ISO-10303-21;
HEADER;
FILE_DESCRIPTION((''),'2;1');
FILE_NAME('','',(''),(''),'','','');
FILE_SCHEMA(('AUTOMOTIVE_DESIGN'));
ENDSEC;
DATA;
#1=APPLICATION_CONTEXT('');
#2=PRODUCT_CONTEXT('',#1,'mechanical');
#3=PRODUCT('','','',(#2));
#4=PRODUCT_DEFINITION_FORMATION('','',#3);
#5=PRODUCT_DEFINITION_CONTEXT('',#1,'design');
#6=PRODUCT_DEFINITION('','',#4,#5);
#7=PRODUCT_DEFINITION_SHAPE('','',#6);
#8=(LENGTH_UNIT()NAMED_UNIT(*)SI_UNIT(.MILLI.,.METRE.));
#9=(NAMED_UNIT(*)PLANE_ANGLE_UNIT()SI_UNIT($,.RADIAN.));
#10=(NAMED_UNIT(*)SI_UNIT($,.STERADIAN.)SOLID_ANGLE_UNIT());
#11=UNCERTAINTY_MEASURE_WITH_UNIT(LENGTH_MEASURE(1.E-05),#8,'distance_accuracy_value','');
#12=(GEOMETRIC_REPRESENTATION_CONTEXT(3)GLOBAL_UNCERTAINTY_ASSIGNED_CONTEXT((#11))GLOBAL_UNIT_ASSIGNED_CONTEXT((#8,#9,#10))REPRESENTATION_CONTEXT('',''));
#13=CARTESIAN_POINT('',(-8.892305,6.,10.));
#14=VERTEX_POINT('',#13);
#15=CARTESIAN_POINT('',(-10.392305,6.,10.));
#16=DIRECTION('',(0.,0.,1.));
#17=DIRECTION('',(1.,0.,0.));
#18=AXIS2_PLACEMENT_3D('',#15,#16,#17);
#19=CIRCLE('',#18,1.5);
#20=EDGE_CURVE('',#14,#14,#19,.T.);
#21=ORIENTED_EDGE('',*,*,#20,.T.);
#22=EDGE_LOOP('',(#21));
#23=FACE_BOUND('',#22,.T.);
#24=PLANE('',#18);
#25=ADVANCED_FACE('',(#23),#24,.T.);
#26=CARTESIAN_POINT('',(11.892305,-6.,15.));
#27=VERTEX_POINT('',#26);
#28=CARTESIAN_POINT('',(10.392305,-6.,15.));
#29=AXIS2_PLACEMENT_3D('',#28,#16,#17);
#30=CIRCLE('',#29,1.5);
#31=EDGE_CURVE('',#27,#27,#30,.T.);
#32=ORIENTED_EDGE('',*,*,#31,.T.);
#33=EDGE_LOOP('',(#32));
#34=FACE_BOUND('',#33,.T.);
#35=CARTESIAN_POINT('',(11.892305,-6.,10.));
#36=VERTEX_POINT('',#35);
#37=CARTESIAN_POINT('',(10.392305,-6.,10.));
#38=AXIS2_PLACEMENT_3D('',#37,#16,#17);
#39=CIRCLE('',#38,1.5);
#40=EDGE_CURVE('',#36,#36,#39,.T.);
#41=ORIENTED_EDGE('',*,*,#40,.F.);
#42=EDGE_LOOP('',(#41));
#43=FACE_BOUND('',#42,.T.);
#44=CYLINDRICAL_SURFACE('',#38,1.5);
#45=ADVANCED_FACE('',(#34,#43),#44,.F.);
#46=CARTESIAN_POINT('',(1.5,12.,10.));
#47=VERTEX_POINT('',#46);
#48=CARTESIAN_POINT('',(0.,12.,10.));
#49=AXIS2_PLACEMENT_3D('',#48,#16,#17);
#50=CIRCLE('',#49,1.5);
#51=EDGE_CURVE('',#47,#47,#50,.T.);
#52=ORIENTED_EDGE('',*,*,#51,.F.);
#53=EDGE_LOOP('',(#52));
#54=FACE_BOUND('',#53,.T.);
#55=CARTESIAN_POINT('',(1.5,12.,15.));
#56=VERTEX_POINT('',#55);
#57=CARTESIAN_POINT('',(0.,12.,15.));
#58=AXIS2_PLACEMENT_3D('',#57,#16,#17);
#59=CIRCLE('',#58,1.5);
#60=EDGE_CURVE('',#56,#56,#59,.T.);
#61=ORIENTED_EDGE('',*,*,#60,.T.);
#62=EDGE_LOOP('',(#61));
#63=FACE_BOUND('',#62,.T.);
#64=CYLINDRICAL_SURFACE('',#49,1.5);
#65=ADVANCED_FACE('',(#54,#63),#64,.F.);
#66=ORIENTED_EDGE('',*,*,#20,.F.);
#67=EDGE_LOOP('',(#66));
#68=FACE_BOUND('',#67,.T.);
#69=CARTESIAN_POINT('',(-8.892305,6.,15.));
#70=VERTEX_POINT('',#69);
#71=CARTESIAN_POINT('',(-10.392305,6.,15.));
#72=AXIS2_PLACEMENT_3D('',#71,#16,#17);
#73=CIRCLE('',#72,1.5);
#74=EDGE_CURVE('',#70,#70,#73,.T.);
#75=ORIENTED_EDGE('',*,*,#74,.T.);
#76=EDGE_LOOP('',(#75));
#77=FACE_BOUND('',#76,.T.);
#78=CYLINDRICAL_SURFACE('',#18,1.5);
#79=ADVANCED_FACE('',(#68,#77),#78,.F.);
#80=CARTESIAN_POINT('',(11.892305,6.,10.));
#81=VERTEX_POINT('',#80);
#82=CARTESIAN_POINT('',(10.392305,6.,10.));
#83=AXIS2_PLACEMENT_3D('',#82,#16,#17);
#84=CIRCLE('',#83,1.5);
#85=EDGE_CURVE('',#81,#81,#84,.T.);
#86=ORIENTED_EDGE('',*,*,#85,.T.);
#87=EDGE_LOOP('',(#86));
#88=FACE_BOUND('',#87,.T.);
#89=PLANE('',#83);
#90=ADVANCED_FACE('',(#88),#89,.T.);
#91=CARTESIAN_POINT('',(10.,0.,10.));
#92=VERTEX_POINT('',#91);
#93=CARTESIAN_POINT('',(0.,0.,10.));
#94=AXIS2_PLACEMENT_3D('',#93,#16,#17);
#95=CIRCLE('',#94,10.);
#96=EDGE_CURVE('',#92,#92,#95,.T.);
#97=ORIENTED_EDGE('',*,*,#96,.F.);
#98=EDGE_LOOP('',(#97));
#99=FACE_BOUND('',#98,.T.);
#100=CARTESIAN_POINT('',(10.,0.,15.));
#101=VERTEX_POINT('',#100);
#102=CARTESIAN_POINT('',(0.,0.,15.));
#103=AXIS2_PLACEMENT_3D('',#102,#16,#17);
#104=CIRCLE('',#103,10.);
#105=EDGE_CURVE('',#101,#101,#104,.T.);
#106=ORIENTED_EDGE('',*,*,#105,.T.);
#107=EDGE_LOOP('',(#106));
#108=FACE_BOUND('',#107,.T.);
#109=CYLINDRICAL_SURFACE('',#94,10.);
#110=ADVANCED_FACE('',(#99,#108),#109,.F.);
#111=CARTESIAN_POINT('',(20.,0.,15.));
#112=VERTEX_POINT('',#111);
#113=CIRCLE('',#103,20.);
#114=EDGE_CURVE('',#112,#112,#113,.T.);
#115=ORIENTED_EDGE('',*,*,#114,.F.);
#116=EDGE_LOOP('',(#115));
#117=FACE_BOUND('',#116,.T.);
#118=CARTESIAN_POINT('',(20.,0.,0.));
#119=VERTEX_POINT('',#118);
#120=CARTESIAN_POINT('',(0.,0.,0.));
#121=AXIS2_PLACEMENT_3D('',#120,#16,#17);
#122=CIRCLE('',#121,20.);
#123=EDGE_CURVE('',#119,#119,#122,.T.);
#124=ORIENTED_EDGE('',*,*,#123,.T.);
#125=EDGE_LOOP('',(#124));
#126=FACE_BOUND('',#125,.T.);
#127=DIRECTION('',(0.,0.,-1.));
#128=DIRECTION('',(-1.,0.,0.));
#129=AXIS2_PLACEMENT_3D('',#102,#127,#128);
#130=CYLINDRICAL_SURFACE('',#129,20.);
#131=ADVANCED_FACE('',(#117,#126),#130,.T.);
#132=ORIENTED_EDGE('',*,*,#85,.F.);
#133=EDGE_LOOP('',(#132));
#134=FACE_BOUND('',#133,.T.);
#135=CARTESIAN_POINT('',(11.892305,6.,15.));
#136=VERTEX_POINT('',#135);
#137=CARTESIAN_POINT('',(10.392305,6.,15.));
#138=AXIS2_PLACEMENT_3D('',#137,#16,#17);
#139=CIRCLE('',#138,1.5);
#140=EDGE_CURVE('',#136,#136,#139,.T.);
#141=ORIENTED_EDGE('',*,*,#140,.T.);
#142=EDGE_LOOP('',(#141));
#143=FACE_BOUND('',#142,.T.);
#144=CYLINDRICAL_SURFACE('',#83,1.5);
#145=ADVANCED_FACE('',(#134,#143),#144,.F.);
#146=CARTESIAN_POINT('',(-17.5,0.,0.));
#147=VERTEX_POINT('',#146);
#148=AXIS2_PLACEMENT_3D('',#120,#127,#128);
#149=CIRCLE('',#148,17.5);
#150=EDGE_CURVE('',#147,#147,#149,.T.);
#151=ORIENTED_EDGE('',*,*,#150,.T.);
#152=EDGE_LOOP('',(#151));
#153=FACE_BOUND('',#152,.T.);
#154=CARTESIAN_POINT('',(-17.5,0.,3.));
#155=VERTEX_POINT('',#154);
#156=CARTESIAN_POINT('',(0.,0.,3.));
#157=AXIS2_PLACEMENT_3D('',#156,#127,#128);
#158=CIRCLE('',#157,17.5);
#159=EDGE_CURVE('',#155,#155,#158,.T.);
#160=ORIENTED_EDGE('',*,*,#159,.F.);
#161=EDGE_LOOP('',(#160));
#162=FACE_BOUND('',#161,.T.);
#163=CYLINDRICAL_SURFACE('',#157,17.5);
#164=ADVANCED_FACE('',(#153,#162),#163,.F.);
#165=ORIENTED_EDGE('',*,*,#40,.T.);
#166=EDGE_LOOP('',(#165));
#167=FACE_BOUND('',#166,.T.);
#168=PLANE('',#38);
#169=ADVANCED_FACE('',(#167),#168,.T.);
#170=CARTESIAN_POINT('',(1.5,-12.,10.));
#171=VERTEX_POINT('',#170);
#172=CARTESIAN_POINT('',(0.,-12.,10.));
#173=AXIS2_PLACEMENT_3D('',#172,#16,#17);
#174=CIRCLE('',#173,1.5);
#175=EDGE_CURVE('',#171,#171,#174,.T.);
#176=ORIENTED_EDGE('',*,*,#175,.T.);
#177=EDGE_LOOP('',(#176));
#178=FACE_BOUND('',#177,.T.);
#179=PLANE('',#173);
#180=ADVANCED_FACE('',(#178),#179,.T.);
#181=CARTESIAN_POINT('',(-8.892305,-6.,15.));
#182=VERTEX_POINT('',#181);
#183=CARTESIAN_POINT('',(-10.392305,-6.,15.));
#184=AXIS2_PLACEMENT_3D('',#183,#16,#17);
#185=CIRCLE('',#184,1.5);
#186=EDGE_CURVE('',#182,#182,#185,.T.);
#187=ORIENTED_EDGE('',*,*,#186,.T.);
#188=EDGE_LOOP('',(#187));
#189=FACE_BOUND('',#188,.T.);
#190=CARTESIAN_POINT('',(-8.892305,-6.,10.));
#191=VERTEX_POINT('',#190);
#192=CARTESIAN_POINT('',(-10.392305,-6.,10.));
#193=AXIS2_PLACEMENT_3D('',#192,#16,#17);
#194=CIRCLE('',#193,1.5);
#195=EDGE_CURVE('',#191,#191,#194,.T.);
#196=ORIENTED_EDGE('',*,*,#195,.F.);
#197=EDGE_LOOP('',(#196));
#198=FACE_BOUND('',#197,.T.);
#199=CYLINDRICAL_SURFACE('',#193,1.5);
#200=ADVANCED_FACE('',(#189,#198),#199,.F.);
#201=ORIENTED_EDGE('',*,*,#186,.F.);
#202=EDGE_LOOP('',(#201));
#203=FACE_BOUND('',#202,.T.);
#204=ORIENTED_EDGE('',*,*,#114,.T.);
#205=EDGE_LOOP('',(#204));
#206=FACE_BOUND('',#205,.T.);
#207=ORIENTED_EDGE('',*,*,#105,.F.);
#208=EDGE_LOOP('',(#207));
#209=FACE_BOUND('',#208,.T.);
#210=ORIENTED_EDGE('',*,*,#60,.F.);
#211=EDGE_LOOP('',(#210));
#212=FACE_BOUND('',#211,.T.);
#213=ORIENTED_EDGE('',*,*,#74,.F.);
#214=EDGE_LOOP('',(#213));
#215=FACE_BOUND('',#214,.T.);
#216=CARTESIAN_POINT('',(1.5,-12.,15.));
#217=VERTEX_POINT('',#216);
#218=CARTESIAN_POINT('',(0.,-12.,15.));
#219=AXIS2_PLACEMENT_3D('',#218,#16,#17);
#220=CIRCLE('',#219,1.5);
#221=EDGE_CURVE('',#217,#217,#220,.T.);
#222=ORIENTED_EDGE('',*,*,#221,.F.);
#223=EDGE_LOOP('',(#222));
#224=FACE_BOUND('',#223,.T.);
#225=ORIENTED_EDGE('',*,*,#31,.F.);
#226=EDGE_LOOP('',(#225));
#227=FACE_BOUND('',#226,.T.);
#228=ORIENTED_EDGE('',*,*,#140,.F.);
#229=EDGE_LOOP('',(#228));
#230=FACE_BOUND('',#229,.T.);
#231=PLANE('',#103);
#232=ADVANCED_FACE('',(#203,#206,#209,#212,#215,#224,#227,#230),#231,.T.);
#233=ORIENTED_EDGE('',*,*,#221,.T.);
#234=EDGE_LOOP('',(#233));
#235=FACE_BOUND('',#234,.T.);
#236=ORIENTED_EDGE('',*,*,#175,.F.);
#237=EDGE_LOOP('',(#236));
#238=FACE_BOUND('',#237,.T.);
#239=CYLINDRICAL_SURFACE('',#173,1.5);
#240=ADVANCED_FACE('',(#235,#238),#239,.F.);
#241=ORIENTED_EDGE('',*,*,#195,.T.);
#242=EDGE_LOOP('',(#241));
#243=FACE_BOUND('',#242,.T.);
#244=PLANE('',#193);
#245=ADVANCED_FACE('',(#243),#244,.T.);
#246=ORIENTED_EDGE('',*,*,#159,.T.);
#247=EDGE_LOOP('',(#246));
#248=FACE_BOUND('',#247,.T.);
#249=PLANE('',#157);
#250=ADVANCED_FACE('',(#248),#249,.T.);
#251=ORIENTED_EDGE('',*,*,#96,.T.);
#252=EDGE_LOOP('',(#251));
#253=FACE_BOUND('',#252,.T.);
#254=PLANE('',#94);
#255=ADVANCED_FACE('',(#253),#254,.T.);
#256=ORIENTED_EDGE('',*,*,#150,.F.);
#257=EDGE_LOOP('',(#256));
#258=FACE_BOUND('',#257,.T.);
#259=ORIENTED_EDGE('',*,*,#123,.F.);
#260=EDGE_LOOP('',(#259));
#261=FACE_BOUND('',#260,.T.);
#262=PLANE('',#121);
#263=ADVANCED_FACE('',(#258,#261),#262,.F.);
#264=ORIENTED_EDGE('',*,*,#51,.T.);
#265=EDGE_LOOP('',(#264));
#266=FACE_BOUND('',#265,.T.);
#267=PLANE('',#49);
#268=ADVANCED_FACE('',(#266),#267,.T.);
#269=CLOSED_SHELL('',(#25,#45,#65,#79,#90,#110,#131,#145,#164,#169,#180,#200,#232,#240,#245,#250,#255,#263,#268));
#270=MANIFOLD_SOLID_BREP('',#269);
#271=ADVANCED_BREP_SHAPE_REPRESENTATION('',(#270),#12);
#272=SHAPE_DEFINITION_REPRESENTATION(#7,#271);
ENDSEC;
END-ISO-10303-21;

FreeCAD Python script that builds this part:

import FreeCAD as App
import Part
import Sketcher

doc = App.newDocument("Part")
body = doc.addObject("PartDesign::Body", "Body")

# Sketch on XY plane
sketch1 = doc.addObject("Sketcher::SketchObject", "Sketch")
body.addObject(sketch1)
sketch1.AttachmentSupport = (doc.XY_Plane, [""])
sketch1.MapMode = "FlatFace"
sketch1.addGeometry(Part.Circle(App.Vector(0, 0, 0), App.Vector(0, 0, 1), 20), False)
sketch1.addConstraint([
    Sketcher.Constraint("Coincident", 0, 3, -1, 1),
    Sketcher.Constraint("Diameter", 0, 40.0),
])
pad1 = doc.addObject("PartDesign::Pad", "Pad")
body.addObject(pad1)
pad1.Profile = sketch1
pad1.Length = 15

# Sketch on XY plane
sketch2 = doc.addObject("Sketcher::SketchObject", "Sketch001")
body.addObject(sketch2)
sketch2.AttachmentSupport = (doc.XY_Plane, [""])
sketch2.MapMode = "FlatFace"
sketch2.AttachmentOffset = App.Placement(App.Vector(0, 0, 15), App.Rotation())
sketch2.addGeometry(Part.Circle(App.Vector(0, 0, 0), App.Vector(0, 0, 1), 10), False)
sketch2.addConstraint([
    Sketcher.Constraint("Coincident", 0, 3, -1, 1),
    Sketcher.Constraint("Diameter", 0, 20.0),
])
pocket1 = doc.addObject("PartDesign::Pocket", "Pocket")
body.addObject(pocket1)
pocket1.Profile = sketch2
pocket1.Length = 5

# Sketch on XY plane
sketch3 = doc.addObject("Sketcher::SketchObject", "Sketch002")
body.addObject(sketch3)
sketch3.AttachmentSupport = (doc.XY_Plane, [""])
sketch3.MapMode = "FlatFace"
sketch3.addGeometry(Part.Circle(App.Vector(0, 0, 0), App.Vector(0, 0, 1), 17.5), False)
sketch3.addConstraint([
    Sketcher.Constraint("Coincident", 0, 3, -1, 1),
    Sketcher.Constraint("Diameter", 0, 35.0),
])
pocket2 = doc.addObject("PartDesign::Pocket", "Pocket001")
body.addObject(pocket2)
pocket2.Profile = sketch3
pocket2.Length = 3
pocket2.Reversed = True

# Sketch on XY plane
sketch4 = doc.addObject("Sketcher::SketchObject", "Sketch003")
body.addObject(sketch4)
sketch4.AttachmentSupport = (doc.XY_Plane, [""])
sketch4.MapMode = "FlatFace"
sketch4.AttachmentOffset = App.Placement(App.Vector(0, 0, 15), App.Rotation())
sketch4.addGeometry([
    Part.Circle(App.Vector(0, 12, 0), App.Vector(0, 0, 1), 1.5),  # 0
    Part.Circle(App.Vector(10.392305, 6, 0), App.Vector(0, 0, 1), 1.5),  # 1
    Part.Circle(App.Vector(10.392305, -6, 0), App.Vector(0, 0, 1), 1.5),  # 2
    Part.Circle(App.Vector(0, -12, 0), App.Vector(0, 0, 1), 1.5),  # 3
    Part.Circle(App.Vector(-10.392305, -6, 0), App.Vector(0, 0, 1), 1.5),  # 4
    Part.Circle(App.Vector(-10.392305, 6, 0), App.Vector(0, 0, 1), 1.5),  # 5
], False)
sketch4.addConstraint([
    Sketcher.Constraint("Equal", 0, 1),
    Sketcher.Constraint("Equal", 1, 2),
    Sketcher.Constraint("Equal", 2, 3),
    Sketcher.Constraint("Equal", 3, 4),
    Sketcher.Constraint("Equal", 4, 5),
    Sketcher.Constraint("Symmetric", 0, 3, 3, 3, -1, 1),
    Sketcher.Constraint("Symmetric", 1, 3, 4, 3, -1, 1),
    Sketcher.Constraint("Symmetric", 2, 3, 5, 3, -1, 1),
    Sketcher.Constraint("Symmetric", 2, 3, 4, 3, -2),
    Sketcher.Constraint("PointOnObject", 0, 3, -2),
    Sketcher.Constraint("Diameter", 0, 3.0),
    Sketcher.Constraint("DistanceY", -1, 1, 0, 3, 12.0),
    Sketcher.Constraint("DistanceY", -1, 1, 1, 3, 6.0),
    Sketcher.Constraint("DistanceX", 4, 3, 2, 3, 20.78461),
])
pocket3 = doc.addObject("PartDesign::Pocket", "Pocket002")
body.addObject(pocket3)
pocket3.Profile = sketch4
pocket3.Length = 5

doc.recompute()
